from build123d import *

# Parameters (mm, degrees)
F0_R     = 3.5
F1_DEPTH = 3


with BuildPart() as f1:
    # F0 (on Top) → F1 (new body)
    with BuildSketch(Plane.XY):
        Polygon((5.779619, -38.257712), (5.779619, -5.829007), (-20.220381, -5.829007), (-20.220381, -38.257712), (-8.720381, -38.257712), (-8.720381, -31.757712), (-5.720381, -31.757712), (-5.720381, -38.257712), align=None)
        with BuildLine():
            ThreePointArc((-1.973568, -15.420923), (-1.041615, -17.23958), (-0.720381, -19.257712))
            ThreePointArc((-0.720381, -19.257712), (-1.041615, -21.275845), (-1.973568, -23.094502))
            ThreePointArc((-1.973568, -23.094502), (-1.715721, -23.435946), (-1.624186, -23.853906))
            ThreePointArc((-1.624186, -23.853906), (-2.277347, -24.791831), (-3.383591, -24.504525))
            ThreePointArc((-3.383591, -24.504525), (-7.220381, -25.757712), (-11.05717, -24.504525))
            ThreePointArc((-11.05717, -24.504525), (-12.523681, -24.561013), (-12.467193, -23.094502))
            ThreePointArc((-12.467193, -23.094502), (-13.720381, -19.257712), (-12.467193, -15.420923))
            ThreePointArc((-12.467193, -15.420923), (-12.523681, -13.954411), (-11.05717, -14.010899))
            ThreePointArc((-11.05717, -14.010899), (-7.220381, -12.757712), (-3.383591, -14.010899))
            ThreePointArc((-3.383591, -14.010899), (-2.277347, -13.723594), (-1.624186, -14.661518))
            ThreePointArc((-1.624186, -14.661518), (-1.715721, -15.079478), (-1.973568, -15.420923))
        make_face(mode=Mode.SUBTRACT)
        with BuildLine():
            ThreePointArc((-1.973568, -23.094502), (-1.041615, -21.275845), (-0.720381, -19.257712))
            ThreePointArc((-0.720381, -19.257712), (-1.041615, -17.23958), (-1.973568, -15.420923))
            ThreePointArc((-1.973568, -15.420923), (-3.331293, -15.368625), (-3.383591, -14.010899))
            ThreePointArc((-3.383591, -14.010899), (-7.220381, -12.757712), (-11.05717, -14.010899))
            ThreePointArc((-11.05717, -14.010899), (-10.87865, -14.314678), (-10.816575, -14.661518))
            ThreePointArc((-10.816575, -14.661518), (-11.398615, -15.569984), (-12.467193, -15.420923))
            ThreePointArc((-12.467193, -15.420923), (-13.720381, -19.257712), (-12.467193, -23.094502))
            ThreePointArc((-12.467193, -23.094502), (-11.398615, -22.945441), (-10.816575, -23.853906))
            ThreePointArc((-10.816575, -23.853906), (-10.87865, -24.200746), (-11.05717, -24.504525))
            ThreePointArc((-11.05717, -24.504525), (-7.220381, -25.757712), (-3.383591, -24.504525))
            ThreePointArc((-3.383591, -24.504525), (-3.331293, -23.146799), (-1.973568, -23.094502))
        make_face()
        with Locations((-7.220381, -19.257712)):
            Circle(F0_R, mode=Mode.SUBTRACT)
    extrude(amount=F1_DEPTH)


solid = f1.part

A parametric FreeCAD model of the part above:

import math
import FreeCAD as App
import Part
import Sketcher
from FreeCAD import Vector
Q = App.Units.Quantity


def add_polygon(sketch, points):
    """Adds a closed chain of lines whose ends are joined by coincident constraints."""
    first, n = sketch.GeometryCount, len(points)
    for a, b in zip(points, points[1:] + points[:1]):
        sketch.addGeometry(Part.LineSegment(App.Vector(*a, 0), App.Vector(*b, 0)), False)
    for i in range(n):
        sketch.addConstraint(Sketcher.Constraint("Coincident", first + i, 2, first + (i + 1) % n, 1))

doc = App.newDocument("Part")
body = doc.addObject("PartDesign::Body", "Body")

# Sketch on XY plane
sketch1 = body.newObject("Sketcher::SketchObject", "Sketch")
sketch1.AttachmentSupport = (doc.getObject("XY_Plane"), [""])
sketch1.MapMode = "FlatFace"
add_polygon(sketch1, [(5.8, -38.3), (5.8, -5.8), (-20.2, -5.8), (-20.2, -38.3), (-8.7, -38.3), (-8.7, -31.8), (-5.7, -31.8), (-5.7, -38.3)])  # lines 0-7
sketch1.addGeometry(Part.ArcOfCircle(Part.Circle(Vector(-11.8, -23.9, 0), Vector(0, 0, 1), 1), math.radians(131), math.radians(319)), False)  # 8
sketch1.addGeometry(Part.ArcOfCircle(Part.Circle(Vector(-11.8, -23.9, 0), Vector(0, 0, 1), 1), math.radians(0), math.radians(131)), False)  # 9
sketch1.addGeometry(Part.ArcOfCircle(Part.Circle(Vector(-11.8, -23.9, 0), Vector(0, 0, 1), 1), math.radians(-41), math.radians(0)), False)  # 10
sketch1.addGeometry(Part.ArcOfCircle(Part.Circle(Vector(-2.6, -23.9, 0), Vector(0, 0, 1), 1), math.radians(-139), math.radians(0)), False)  # 11
sketch1.addGeometry(Part.ArcOfCircle(Part.Circle(Vector(-2.6, -23.9, 0), Vector(0, 0, 1), 1), math.radians(49), math.radians(221)), False)  # 12
sketch1.addGeometry(Part.ArcOfCircle(Part.Circle(Vector(-2.6, -23.9, 0), Vector(0, 0, 1), 1), math.radians(0), math.radians(49)), False)  # 13
sketch1.addGeometry(Part.Circle(Vector(-7.2, -19.3, 0), Vector(0, 0, 1), 3.5), False)  # 14
sketch1.addGeometry(Part.ArcOfCircle(Part.Circle(Vector(-11.8, -14.7, 0), Vector(0, 0, 1), 1), math.radians(41), math.radians(229)), False)  # 15
sketch1.addGeometry(Part.ArcOfCircle(Part.Circle(Vector(-11.8, -14.7, 0), Vector(0, 0, 1), 1), math.radians(0), math.radians(41)), False)  # 16
sketch1.addGeometry(Part.ArcOfCircle(Part.Circle(Vector(-11.8, -14.7, 0), Vector(0, 0, 1), 1), math.radians(-131), math.radians(0)), False)  # 17
sketch1.addGeometry(Part.ArcOfCircle(Part.Circle(Vector(-2.6, -14.7, 0), Vector(0, 0, 1), 1), math.radians(-49), math.radians(0)), False)  # 18
sketch1.addGeometry(Part.ArcOfCircle(Part.Circle(Vector(-2.6, -14.7, 0), Vector(0, 0, 1), 1), math.radians(139), math.radians(311)), False)  # 19
sketch1.addGeometry(Part.ArcOfCircle(Part.Circle(Vector(-2.6, -14.7, 0), Vector(0, 0, 1), 1), math.radians(0), math.radians(139)), False)  # 20
sketch1.addConstraint([
    Sketcher.Constraint("Tangent", 8, 1, 9, 2),
    Sketcher.Constraint("Coincident", 9, 1, 10, 2),
    Sketcher.Constraint("Tangent", 10, 1, 8, 2),
    Sketcher.Constraint("Tangent", 11, 1, 12, 2),
    Sketcher.Constraint("Tangent", 12, 1, 13, 2),
    Sketcher.Constraint("Tangent", 13, 1, 11, 2),
    Sketcher.Constraint("Tangent", 15, 1, 16, 2),
    Sketcher.Constraint("Coincident", 16, 1, 17, 2),
    Sketcher.Constraint("Tangent", 17, 1, 15, 2),
    Sketcher.Constraint("Tangent", 18, 1, 19, 2),
    Sketcher.Constraint("Tangent", 19, 1, 20, 2),
    Sketcher.Constraint("Coincident", 20, 1, 18, 2),
    Sketcher.Constraint("Vertical", 0),
    Sketcher.Constraint("Horizontal", 1),
    Sketcher.Constraint("Vertical", 2),
    Sketcher.Constraint("Horizontal", 3),
    Sketcher.Constraint("Vertical", 4),
    Sketcher.Constraint("Horizontal", 5),
    Sketcher.Constraint("Vertical", 6),
    Sketcher.Constraint("Horizontal", 7),
    Sketcher.Constraint("Equal", 8, 9),
    Sketcher.Constraint("Equal", 9, 11),
    Sketcher.Constraint("Equal", 13, 15),
    Sketcher.Constraint("Equal", 10, 16),
    Sketcher.Constraint("Equal", 17, 19),
    Sketcher.Constraint("Equal", 19, 20),
    Sketcher.Constraint("Horizontal", 9, 3, 11, 3),
    Sketcher.Constraint("Horizontal", 16, 3, 18, 3),
    Sketcher.Constraint("Horizontal", 3, 2, 6, 2),
    Sketcher.Constraint("Horizontal", 13, 3, 9, 1),
    Sketcher.Constraint("Horizontal", 10, 1, 11, 1),
    Sketcher.Constraint("Horizontal", 8, 1, 12, 1),
    Sketcher.Constraint("Horizontal", 9, 1, 13, 1),
    Sketcher.Constraint("Horizontal", 20, 3, 16, 1),
    Sketcher.Constraint("Horizontal", 17, 1, 18, 1),
    Sketcher.Constraint("Horizontal", 15, 1, 19, 1),
    Sketcher.Constraint("Horizontal", 16, 1, 20, 1),
    Sketcher.Constraint("Vertical", 9, 3, 15, 3),
    Sketcher.Constraint("Vertical", 13, 3, 19, 3),
    Sketcher.Constraint("Vertical", 10, 1, 15, 1),
    Sketcher.Constraint("Vertical", 8, 1, 17, 1),
    Sketcher.Constraint("Equal", 3, 7),
    Sketcher.Constraint("Diameter", 14, Q("7 mm")),
    Sketcher.Constraint("Radius", 8, Q("1 mm")),
    Sketcher.Constraint("DistanceX", 1, 2, 1, 1, Q("26 mm")),
    Sketcher.Constraint("DistanceX", 5, 1, 5, 2, Q("3 mm")),
    Sketcher.Constraint("DistanceY", 4, 1, 4, 2, Q("6.5 mm")),
    Sketcher.Constraint("DistanceX", 14, 3, 0, 2, Q("13 mm")),
    Sketcher.Constraint("DistanceY", 15, 1, -1, 1, Q("14.010899 mm")),
    Sketcher.Constraint("DistanceX", 10, 3, 10, 1, Q("0.759399 mm")),
    Sketcher.Constraint("DistanceY", 0, 1, 0, 2, Q("32.428705 mm")),
    Sketcher.Constraint("DistanceX", 10, 3, -1, 1, Q("11.816569 mm")),
    Sketcher.Constraint("DistanceY", 10, 3, -1, 1, Q("23.853909 mm")),
    Sketcher.Constraint("DistanceX", 14, 3, -1, 1, Q("7.220381 mm")),
    Sketcher.Constraint("DistanceX", 18, 3, -1, 1, Q("2.624189 mm")),
    Sketcher.Constraint("DistanceY", 2, 2, -1, 1, Q("38.257712 mm")),
    Sketcher.Constraint("DistanceX", 12, 1, -1, 1, Q("1.973568 mm")),
    Sketcher.Constraint("DistanceY", 8, 1, 14, 3, Q("3.83679 mm")),
])
pad1 = body.newObject("PartDesign::Pad", "Pad")
pad1.Profile = sketch1
pad1.Length = 3

doc.recompute()
